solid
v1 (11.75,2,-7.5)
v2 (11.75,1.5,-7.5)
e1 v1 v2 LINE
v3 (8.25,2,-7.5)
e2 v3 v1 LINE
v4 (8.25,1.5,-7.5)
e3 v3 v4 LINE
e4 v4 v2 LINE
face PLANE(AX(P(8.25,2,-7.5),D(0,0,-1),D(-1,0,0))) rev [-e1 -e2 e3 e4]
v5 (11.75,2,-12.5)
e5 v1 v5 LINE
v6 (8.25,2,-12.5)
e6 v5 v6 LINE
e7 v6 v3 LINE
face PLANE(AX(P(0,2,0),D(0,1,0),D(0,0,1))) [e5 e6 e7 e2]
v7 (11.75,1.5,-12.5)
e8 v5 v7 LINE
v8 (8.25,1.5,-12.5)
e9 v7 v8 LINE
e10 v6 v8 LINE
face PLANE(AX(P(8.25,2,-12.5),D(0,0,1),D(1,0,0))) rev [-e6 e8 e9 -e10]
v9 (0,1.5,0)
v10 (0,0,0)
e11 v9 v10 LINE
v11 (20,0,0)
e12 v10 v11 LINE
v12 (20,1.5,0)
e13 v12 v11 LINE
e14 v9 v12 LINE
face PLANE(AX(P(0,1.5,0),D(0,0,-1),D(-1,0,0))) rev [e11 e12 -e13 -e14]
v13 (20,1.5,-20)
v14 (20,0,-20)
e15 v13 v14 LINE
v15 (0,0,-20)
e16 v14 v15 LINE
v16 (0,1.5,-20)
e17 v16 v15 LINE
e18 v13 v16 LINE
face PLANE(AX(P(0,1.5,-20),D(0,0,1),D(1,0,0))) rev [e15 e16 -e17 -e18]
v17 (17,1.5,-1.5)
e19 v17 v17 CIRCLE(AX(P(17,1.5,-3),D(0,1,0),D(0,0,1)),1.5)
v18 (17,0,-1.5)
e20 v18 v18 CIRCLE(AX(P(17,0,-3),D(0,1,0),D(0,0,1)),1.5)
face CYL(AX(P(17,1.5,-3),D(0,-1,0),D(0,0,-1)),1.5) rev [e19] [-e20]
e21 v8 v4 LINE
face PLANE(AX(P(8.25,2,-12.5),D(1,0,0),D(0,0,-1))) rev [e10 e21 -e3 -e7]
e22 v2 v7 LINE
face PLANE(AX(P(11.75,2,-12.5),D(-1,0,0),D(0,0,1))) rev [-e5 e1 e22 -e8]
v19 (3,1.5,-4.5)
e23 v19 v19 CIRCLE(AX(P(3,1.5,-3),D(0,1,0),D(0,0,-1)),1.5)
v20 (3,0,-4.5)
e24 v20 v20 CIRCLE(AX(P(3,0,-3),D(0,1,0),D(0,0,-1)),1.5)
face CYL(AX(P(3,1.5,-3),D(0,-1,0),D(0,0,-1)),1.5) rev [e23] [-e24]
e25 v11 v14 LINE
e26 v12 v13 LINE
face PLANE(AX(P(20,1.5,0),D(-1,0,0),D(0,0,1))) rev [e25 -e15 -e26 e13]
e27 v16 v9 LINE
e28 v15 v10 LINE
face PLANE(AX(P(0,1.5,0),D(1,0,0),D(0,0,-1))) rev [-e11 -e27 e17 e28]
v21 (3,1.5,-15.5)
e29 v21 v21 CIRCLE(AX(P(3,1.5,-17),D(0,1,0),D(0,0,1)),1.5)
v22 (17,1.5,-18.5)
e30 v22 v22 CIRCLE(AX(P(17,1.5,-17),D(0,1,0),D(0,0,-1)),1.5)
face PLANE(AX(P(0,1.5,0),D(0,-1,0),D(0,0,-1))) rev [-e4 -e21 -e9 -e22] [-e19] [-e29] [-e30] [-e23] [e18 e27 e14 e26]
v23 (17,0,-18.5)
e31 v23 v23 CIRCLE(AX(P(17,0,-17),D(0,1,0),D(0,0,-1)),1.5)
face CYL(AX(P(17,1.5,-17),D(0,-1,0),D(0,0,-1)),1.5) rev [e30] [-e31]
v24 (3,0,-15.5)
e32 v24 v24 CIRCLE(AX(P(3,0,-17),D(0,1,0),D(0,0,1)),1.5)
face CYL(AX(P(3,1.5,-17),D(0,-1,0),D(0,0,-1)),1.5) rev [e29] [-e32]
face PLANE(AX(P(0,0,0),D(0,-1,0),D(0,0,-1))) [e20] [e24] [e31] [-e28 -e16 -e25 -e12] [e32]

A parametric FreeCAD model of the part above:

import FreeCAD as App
import Part
import Sketcher
from FreeCAD import Vector
Q = App.Units.Quantity

doc = App.newDocument("Part")
body = doc.addObject("PartDesign::Body", "Body")

# Sketch on XZ plane
sketch1 = body.newObject("Sketcher::SketchObject", "Sketch")
sketch1.AttachmentSupport = (doc.getObject("XZ_Plane"), [""])
sketch1.MapMode = "FlatFace"
sketch1.addGeometry(Part.LineSegment(Vector(0, -20, 0), Vector(0, 0, 0)), False)
sketch1.addGeometry(Part.LineSegment(Vector(0, 0, 0), Vector(20, 0, 0)), False)
sketch1.addGeometry(Part.LineSegment(Vector(20, 0, 0), Vector(20, -20, 0)), False)
sketch1.addGeometry(Part.LineSegment(Vector(20, -20, 0), Vector(0, -20, 0)), False)
sketch1.addGeometry(Part.Circle(Vector(3, -3, 0), Vector(0, 0, 1), 1.5), False)
sketch1.addGeometry(Part.Circle(Vector(17, -3, 0), Vector(0, 0, 1), 1.5), False)
sketch1.addGeometry(Part.Circle(Vector(3, -17, 0), Vector(0, 0, 1), 1.5), False)
sketch1.addGeometry(Part.Circle(Vector(17, -17, 0), Vector(0, 0, 1), 1.5), False)
sketch1.addConstraint(Sketcher.Constraint("Coincident", 0, 2, 1, 1))
sketch1.addConstraint(Sketcher.Constraint("Coincident", 1, 2, 2, 1))
sketch1.addConstraint(Sketcher.Constraint("Coincident", 2, 2, 3, 1))
sketch1.addConstraint(Sketcher.Constraint("Coincident", 3, 2, 0, 1))
sketch1.addConstraint(Sketcher.Constraint("Vertical", 0))
sketch1.addConstraint(Sketcher.Constraint("Horizontal", 1))
sketch1.addConstraint(Sketcher.Constraint("Vertical", 2))
sketch1.addConstraint(Sketcher.Constraint("Horizontal", 3))
sketch1.addConstraint(Sketcher.Constraint("Coincident", 0, 2, -1, 1))
sketch1.addConstraint(Sketcher.Constraint("Equal", 4, 5))
sketch1.addConstraint(Sketcher.Constraint("Equal", 5, 6))
sketch1.addConstraint(Sketcher.Constraint("Equal", 6, 7))
sketch1.addConstraint(Sketcher.Constraint("Horizontal", 4, 3, 5, 3))
sketch1.addConstraint(Sketcher.Constraint("Horizontal", 6, 3, 7, 3))
sketch1.addConstraint(Sketcher.Constraint("Vertical", 4, 3, 6, 3))
sketch1.addConstraint(Sketcher.Constraint("Vertical", 5, 3, 7, 3))
sketch1.addConstraint(Sketcher.Constraint("Equal", 3, 0))
sketch1.addConstraint(Sketcher.Constraint("Diameter", 4, Q("3 mm")))
sketch1.addConstraint(Sketcher.Constraint("DistanceX", 1, 1, 1, 2, Q("20 mm")))
sketch1.addConstraint(Sketcher.Constraint("DistanceX", -1, 1, 4, 3, Q("3 mm")))
sketch1.addConstraint(Sketcher.Constraint("DistanceY", 4, 3, -1, 1, Q("3 mm")))
sketch1.addConstraint(Sketcher.Constraint("DistanceX", -1, 1, 5, 3, Q("17 mm")))
sketch1.addConstraint(Sketcher.Constraint("DistanceY", 6, 3, -1, 1, Q("17 mm")))
pad1 = body.newObject("PartDesign::Pad", "Pad")
pad1.Profile = sketch1
pad1.Length = 1.5
pad1.Reversed = True

# Sketch on XZ plane
sketch2 = body.newObject("Sketcher::SketchObject", "Sketch001")
sketch2.AttachmentSupport = (doc.getObject("XZ_Plane"), [""])
sketch2.MapMode = "FlatFace"
sketch2.AttachmentOffset = App.Placement(Vector(0, 0, -1.5), App.Rotation())
sketch2.addGeometry(Part.LineSegment(Vector(8.2, -12.5, 0), Vector(8.2, -7.5, 0)), False)
sketch2.addGeometry(Part.LineSegment(Vector(8.2, -7.5, 0), Vector(11.8, -7.5, 0)), False)
sketch2.addGeometry(Part.LineSegment(Vector(11.8, -7.5, 0), Vector(11.8, -12.5, 0)), False)
sketch2.addGeometry(Part.LineSegment(Vector(11.8, -12.5, 0), Vector(8.2, -12.5, 0)), False)
sketch2.addConstraint(Sketcher.Constraint("Coincident", 0, 2, 1, 1))
sketch2.addConstraint(Sketcher.Constraint("Coincident", 1, 2, 2, 1))
sketch2.addConstraint(Sketcher.Constraint("Coincident", 2, 2, 3, 1))
sketch2.addConstraint(Sketcher.Constraint("Coincident", 3, 2, 0, 1))
sketch2.addConstraint(Sketcher.Constraint("Vertical", 0))
sketch2.addConstraint(Sketcher.Constraint("Horizontal", 1))
sketch2.addConstraint(Sketcher.Constraint("Vertical", 2))
sketch2.addConstraint(Sketcher.Constraint("Horizontal", 3))
sketch2.addConstraint(Sketcher.Constraint("DistanceY", 0, 1, 0, 2, Q("5 mm")))
sketch2.addConstraint(Sketcher.Constraint("DistanceX", 1, 1, 1, 2, Q("3.5 mm")))
sketch2.addConstraint(Sketcher.Constraint("DistanceY", 0, 2, -1, 1, Q("7.5 mm")))
sketch2.addConstraint(Sketcher.Constraint("DistanceX", -1, 1, 0, 2, Q("8.25 mm")))
pad2 = body.newObject("PartDesign::Pad", "Pad001")
pad2.Profile = sketch2
pad2.Length = 0.5
pad2.Reversed = True

doc.recompute()
